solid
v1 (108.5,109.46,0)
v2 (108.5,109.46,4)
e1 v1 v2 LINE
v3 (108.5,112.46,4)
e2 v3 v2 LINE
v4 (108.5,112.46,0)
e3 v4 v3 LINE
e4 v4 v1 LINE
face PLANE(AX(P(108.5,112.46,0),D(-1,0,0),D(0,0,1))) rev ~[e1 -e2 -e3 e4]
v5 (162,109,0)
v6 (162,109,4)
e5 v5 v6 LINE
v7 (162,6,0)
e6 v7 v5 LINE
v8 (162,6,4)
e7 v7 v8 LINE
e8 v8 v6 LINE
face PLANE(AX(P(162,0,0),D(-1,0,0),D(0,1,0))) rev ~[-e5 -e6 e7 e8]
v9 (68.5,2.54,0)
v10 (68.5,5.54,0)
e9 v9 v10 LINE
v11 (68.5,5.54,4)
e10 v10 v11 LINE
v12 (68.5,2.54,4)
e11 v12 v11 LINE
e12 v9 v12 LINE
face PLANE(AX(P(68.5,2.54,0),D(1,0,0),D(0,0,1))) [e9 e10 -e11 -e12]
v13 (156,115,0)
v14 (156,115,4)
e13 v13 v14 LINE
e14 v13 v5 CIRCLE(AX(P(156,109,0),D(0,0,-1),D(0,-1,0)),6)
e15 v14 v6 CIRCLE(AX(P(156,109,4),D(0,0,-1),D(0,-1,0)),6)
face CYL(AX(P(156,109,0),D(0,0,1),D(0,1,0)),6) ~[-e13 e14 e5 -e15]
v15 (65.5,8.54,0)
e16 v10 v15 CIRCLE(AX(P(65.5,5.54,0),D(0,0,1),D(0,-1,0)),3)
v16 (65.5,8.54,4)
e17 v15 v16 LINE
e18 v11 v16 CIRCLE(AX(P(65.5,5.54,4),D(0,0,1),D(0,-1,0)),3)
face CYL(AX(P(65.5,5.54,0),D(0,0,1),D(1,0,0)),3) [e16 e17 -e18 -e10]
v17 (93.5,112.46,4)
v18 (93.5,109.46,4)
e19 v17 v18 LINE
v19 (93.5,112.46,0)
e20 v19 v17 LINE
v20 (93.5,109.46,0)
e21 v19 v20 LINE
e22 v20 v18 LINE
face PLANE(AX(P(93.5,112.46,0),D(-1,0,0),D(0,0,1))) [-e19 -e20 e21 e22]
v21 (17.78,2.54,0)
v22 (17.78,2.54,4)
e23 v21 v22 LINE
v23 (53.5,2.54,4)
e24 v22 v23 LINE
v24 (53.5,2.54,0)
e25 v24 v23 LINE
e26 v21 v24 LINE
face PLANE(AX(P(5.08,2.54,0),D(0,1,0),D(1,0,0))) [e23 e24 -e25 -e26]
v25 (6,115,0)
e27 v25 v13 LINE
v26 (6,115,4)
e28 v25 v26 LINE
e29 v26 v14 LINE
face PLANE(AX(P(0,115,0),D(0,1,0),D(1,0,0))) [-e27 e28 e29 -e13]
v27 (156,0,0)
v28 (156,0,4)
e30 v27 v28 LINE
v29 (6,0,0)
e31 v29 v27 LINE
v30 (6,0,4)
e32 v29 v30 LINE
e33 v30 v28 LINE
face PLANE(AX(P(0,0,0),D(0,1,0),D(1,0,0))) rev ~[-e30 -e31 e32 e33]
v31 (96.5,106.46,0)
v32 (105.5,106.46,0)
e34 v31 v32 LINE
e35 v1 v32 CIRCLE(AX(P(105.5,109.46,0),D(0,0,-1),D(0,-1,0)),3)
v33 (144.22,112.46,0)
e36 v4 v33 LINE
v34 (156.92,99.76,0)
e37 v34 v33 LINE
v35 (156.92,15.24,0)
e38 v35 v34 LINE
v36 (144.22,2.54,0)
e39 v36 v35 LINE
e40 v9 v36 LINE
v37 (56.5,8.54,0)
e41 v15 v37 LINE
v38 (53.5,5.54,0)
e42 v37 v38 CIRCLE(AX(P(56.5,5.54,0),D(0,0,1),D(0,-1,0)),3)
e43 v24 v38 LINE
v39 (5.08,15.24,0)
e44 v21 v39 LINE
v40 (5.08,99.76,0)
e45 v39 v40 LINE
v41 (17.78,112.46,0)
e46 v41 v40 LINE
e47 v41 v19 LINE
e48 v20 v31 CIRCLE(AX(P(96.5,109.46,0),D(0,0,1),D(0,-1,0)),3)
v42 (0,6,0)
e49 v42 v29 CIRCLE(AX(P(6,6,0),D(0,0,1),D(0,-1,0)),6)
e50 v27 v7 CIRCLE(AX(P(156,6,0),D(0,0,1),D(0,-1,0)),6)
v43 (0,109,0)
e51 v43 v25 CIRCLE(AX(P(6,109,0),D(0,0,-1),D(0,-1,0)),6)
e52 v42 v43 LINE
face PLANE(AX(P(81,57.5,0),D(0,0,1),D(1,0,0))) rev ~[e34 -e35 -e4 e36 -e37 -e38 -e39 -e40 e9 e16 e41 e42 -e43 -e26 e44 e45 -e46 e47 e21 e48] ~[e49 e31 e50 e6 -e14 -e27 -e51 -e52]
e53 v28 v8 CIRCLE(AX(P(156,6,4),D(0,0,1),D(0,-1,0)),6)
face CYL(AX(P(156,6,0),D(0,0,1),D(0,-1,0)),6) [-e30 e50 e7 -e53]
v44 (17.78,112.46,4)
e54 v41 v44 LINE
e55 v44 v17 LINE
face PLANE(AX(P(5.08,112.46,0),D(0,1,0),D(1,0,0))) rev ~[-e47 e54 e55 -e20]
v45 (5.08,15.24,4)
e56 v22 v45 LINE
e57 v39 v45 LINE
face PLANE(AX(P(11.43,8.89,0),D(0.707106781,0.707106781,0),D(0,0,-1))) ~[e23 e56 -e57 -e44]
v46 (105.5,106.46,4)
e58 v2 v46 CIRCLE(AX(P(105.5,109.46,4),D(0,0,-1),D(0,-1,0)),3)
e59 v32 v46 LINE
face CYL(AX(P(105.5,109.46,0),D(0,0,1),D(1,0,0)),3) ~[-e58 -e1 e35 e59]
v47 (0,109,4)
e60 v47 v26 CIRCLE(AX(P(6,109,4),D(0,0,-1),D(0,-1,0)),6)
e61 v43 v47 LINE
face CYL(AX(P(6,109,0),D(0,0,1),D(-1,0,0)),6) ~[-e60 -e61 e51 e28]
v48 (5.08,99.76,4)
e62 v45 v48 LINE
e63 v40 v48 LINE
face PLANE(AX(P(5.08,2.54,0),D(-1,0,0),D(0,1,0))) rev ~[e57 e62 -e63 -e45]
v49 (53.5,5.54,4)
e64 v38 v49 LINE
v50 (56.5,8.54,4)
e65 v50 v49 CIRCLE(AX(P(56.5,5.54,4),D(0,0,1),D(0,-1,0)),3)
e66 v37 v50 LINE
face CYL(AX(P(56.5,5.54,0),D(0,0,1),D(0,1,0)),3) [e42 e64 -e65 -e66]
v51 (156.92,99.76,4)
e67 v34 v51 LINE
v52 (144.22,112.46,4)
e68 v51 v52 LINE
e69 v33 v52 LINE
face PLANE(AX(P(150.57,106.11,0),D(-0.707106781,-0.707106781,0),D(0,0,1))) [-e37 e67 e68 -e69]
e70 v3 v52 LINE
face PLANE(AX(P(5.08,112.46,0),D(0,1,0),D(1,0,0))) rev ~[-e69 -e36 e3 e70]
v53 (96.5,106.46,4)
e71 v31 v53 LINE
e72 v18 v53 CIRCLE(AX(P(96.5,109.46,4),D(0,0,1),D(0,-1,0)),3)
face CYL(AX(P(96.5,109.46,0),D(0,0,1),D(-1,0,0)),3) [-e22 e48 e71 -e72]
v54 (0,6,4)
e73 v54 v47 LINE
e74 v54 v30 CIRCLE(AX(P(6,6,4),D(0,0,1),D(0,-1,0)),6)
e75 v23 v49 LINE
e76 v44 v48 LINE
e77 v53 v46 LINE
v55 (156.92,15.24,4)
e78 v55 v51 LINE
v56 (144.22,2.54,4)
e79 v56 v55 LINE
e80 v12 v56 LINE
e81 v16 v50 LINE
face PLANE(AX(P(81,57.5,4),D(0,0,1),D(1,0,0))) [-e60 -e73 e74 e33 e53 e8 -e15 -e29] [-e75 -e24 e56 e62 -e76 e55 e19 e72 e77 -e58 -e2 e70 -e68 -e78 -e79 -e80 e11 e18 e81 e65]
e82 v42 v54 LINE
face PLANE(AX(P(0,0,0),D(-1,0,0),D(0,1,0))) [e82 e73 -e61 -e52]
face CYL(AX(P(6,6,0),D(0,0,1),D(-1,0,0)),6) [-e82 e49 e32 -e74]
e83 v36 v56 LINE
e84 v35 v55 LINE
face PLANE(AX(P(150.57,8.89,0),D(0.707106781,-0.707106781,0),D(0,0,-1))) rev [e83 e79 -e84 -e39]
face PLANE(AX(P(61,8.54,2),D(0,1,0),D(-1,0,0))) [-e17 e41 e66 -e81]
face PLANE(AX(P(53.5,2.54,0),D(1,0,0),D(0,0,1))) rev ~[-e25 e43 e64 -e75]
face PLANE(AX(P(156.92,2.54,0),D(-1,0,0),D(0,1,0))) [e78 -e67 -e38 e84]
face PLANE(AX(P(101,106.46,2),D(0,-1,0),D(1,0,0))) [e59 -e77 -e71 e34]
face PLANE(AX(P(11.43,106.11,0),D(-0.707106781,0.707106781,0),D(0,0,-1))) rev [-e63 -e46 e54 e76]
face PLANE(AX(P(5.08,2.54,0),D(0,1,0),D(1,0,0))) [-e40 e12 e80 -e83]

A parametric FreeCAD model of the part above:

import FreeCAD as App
import Part
import Sketcher


def edges_at(feature, points):
    """Names of the edges that pass closest to the given points."""
    edges = feature.Shape.Edges
    near = lambda p: min(range(len(edges)), key=lambda i: edges[i].distToShape(Part.Vertex(*p))[0])
    return sorted({f"Edge{near(p) + 1}" for p in points})

doc = App.newDocument("Part")
body = doc.addObject("PartDesign::Body", "Body")

# Sketch on XY plane
sketch1 = body.newObject("Sketcher::SketchObject", "Sketch")
sketch1.AttachmentSupport = (doc.getObject("XY_Plane"), [""])
sketch1.MapMode = "FlatFace"
sketch1.addGeometry([
    Part.LineSegment(App.Vector(0, 115, 0), App.Vector(0, 0, 0)),  # 0
    Part.LineSegment(App.Vector(0, 0, 0), App.Vector(162, 0, 0)),  # 1
    Part.LineSegment(App.Vector(162, 0, 0), App.Vector(162, 115, 0)),  # 2
    Part.LineSegment(App.Vector(162, 115, 0), App.Vector(0, 115, 0)),  # 3
    Part.LineSegment(App.Vector(157, 3, 0), App.Vector(5, 3, 0)),  # 4
    Part.LineSegment(App.Vector(5, 3, 0), App.Vector(5, 112, 0)),  # 5
    Part.LineSegment(App.Vector(5, 112, 0), App.Vector(157, 112, 0)),  # 6
    Part.LineSegment(App.Vector(157, 112, 0), App.Vector(157, 3, 0)),  # 7
], False)
sketch1.addConstraint([
    Sketcher.Constraint("Coincident", 0, 2, 1, 1),
    Sketcher.Constraint("Coincident", 1, 2, 2, 1),
    Sketcher.Constraint("Coincident", 2, 2, 3, 1),
    Sketcher.Constraint("Coincident", 3, 2, 0, 1),
    Sketcher.Constraint("Coincident", 4, 2, 5, 1),
    Sketcher.Constraint("Coincident", 5, 2, 6, 1),
    Sketcher.Constraint("Coincident", 6, 2, 7, 1),
    Sketcher.Constraint("Coincident", 7, 2, 4, 1),
    Sketcher.Constraint("Vertical", 0),
    Sketcher.Constraint("Horizontal", 1),
    Sketcher.Constraint("Vertical", 2),
    Sketcher.Constraint("Horizontal", 3),
    Sketcher.Constraint("Horizontal", 4),
    Sketcher.Constraint("Vertical", 5),
    Sketcher.Constraint("Horizontal", 6),
    Sketcher.Constraint("Vertical", 7),
    Sketcher.Constraint("Coincident", 0, 2, -1, 1),
    Sketcher.Constraint("DistanceX", 1, 1, 1, 2, 162.0),
    Sketcher.Constraint("DistanceY", 0, 2, 0, 1, 115.0),
    Sketcher.Constraint("DistanceX", 4, 2, 4, 1, 151.84),
    Sketcher.Constraint("DistanceY", 5, 1, 5, 2, 109.92),
    Sketcher.Constraint("DistanceX", -1, 1, 4, 2, 5.08),
    Sketcher.Constraint("DistanceY", -1, 1, 4, 2, 2.54),
])
pad1 = body.newObject("PartDesign::Pad", "Pad")
pad1.Profile = sketch1
pad1.Length = 4
doc.recompute()

fillet = body.newObject("PartDesign::Fillet", "Fillet")
fillet.Base = (pad1, edges_at(pad1, [
    (0, 115, 2),
    (162, 115, 2),
    (162, 0, 2),
    (0, 0, 2),
]))
fillet.Radius = 6
doc.recompute()

chamfer = body.newObject("PartDesign::Chamfer", "Chamfer")
chamfer.Base = (fillet, edges_at(fillet, [
    (5.08, 112.46, 2),
    (156.92, 2.54, 2),
    (156.92, 112.46, 2),
    (5.08, 2.54, 2),
]))
chamfer.Size = 12.7

# Sketch on XZ plane
sketch2 = body.newObject("Sketcher::SketchObject", "Sketch001")
sketch2.AttachmentSupport = (doc.getObject("XZ_Plane"), [""])
sketch2.MapMode = "FlatFace"
sketch2.AttachmentOffset = App.Placement(App.Vector(0, 0, -2.54), App.Rotation())
sketch2.addGeometry([
    Part.LineSegment(App.Vector(68.5, 4, 0), App.Vector(68.5, 0, 0)),
    Part.LineSegment(App.Vector(68.5, 0, 0), App.Vector(53.5, 0, 0)),
    Part.LineSegment(App.Vector(53.5, 0, 0), App.Vector(53.5, 4, 0)),
    Part.LineSegment(App.Vector(53.5, 4, 0), App.Vector(68.5, 4, 0)),
], False)
sketch2.addConstraint([
    Sketcher.Constraint("Coincident", 0, 2, 1, 1),
    Sketcher.Constraint("Coincident", 1, 2, 2, 1),
    Sketcher.Constraint("Coincident", 2, 2, 3, 1),
    Sketcher.Constraint("Coincident", 3, 2, 0, 1),
    Sketcher.Constraint("Vertical", 0),
    Sketcher.Constraint("Horizontal", 1),
    Sketcher.Constraint("Vertical", 2),
    Sketcher.Constraint("Horizontal", 3),
    Sketcher.Constraint("PointOnObject", 0, 2, -1),
    Sketcher.Constraint("DistanceX", 1, 2, 1, 1, 15.0),
    Sketcher.Constraint("DistanceY", 0, 2, 0, 1, 4.0),
    Sketcher.Constraint("DistanceX", -1, 1, 0, 2, 68.5),
])
pad2 = body.newObject("PartDesign::Pad", "Pad001")
pad2.Profile = sketch2
pad2.Length = 6
pad2.Reversed = True

# Sketch on XZ plane
sketch3 = body.newObject("Sketcher::SketchObject", "Sketch002")
sketch3.AttachmentSupport = (doc.getObject("XZ_Plane"), [""])
sketch3.MapMode = "FlatFace"
sketch3.AttachmentOffset = App.Placement(App.Vector(0, 0, -112.46), App.Rotation())
sketch3.addGeometry([
    Part.LineSegment(App.Vector(93.5, 4, 0), App.Vector(93.5, 0, 0)),
    Part.LineSegment(App.Vector(93.5, 0, 0), App.Vector(108.5, 0, 0)),
    Part.LineSegment(App.Vector(108.5, 0, 0), App.Vector(108.5, 4, 0)),
    Part.LineSegment(App.Vector(108.5, 4, 0), App.Vector(93.5, 4, 0)),
], False)
sketch3.addConstraint([
    Sketcher.Constraint("Coincident", 0, 2, 1, 1),
    Sketcher.Constraint("Coincident", 1, 2, 2, 1),
    Sketcher.Constraint("Coincident", 2, 2, 3, 1),
    Sketcher.Constraint("Coincident", 3, 2, 0, 1),
    Sketcher.Constraint("Vertical", 0),
    Sketcher.Constraint("Horizontal", 1),
    Sketcher.Constraint("Vertical", 2),
    Sketcher.Constraint("Horizontal", 3),
    Sketcher.Constraint("PointOnObject", 0, 2, -1),
    Sketcher.Constraint("DistanceX", 1, 1, 1, 2, 15.0),
    Sketcher.Constraint("DistanceY", 0, 2, 0, 1, 4.0),
    Sketcher.Constraint("DistanceX", -1, 1, 0, 2, 93.5),
])
pad3 = body.newObject("PartDesign::Pad", "Pad002")
pad3.Profile = sketch3
pad3.Length = 6
doc.recompute()

fillet2 = body.newObject("PartDesign::Fillet", "Fillet001")
fillet2.Base = (pad3, edges_at(pad3, [
    (93.5, 106.46, 2),
    (108.5, 106.46, 2),
    (68.5, 8.54, 2),
    (53.5, 8.54, 2),
]))
fillet2.Radius = 3

doc.recompute()
